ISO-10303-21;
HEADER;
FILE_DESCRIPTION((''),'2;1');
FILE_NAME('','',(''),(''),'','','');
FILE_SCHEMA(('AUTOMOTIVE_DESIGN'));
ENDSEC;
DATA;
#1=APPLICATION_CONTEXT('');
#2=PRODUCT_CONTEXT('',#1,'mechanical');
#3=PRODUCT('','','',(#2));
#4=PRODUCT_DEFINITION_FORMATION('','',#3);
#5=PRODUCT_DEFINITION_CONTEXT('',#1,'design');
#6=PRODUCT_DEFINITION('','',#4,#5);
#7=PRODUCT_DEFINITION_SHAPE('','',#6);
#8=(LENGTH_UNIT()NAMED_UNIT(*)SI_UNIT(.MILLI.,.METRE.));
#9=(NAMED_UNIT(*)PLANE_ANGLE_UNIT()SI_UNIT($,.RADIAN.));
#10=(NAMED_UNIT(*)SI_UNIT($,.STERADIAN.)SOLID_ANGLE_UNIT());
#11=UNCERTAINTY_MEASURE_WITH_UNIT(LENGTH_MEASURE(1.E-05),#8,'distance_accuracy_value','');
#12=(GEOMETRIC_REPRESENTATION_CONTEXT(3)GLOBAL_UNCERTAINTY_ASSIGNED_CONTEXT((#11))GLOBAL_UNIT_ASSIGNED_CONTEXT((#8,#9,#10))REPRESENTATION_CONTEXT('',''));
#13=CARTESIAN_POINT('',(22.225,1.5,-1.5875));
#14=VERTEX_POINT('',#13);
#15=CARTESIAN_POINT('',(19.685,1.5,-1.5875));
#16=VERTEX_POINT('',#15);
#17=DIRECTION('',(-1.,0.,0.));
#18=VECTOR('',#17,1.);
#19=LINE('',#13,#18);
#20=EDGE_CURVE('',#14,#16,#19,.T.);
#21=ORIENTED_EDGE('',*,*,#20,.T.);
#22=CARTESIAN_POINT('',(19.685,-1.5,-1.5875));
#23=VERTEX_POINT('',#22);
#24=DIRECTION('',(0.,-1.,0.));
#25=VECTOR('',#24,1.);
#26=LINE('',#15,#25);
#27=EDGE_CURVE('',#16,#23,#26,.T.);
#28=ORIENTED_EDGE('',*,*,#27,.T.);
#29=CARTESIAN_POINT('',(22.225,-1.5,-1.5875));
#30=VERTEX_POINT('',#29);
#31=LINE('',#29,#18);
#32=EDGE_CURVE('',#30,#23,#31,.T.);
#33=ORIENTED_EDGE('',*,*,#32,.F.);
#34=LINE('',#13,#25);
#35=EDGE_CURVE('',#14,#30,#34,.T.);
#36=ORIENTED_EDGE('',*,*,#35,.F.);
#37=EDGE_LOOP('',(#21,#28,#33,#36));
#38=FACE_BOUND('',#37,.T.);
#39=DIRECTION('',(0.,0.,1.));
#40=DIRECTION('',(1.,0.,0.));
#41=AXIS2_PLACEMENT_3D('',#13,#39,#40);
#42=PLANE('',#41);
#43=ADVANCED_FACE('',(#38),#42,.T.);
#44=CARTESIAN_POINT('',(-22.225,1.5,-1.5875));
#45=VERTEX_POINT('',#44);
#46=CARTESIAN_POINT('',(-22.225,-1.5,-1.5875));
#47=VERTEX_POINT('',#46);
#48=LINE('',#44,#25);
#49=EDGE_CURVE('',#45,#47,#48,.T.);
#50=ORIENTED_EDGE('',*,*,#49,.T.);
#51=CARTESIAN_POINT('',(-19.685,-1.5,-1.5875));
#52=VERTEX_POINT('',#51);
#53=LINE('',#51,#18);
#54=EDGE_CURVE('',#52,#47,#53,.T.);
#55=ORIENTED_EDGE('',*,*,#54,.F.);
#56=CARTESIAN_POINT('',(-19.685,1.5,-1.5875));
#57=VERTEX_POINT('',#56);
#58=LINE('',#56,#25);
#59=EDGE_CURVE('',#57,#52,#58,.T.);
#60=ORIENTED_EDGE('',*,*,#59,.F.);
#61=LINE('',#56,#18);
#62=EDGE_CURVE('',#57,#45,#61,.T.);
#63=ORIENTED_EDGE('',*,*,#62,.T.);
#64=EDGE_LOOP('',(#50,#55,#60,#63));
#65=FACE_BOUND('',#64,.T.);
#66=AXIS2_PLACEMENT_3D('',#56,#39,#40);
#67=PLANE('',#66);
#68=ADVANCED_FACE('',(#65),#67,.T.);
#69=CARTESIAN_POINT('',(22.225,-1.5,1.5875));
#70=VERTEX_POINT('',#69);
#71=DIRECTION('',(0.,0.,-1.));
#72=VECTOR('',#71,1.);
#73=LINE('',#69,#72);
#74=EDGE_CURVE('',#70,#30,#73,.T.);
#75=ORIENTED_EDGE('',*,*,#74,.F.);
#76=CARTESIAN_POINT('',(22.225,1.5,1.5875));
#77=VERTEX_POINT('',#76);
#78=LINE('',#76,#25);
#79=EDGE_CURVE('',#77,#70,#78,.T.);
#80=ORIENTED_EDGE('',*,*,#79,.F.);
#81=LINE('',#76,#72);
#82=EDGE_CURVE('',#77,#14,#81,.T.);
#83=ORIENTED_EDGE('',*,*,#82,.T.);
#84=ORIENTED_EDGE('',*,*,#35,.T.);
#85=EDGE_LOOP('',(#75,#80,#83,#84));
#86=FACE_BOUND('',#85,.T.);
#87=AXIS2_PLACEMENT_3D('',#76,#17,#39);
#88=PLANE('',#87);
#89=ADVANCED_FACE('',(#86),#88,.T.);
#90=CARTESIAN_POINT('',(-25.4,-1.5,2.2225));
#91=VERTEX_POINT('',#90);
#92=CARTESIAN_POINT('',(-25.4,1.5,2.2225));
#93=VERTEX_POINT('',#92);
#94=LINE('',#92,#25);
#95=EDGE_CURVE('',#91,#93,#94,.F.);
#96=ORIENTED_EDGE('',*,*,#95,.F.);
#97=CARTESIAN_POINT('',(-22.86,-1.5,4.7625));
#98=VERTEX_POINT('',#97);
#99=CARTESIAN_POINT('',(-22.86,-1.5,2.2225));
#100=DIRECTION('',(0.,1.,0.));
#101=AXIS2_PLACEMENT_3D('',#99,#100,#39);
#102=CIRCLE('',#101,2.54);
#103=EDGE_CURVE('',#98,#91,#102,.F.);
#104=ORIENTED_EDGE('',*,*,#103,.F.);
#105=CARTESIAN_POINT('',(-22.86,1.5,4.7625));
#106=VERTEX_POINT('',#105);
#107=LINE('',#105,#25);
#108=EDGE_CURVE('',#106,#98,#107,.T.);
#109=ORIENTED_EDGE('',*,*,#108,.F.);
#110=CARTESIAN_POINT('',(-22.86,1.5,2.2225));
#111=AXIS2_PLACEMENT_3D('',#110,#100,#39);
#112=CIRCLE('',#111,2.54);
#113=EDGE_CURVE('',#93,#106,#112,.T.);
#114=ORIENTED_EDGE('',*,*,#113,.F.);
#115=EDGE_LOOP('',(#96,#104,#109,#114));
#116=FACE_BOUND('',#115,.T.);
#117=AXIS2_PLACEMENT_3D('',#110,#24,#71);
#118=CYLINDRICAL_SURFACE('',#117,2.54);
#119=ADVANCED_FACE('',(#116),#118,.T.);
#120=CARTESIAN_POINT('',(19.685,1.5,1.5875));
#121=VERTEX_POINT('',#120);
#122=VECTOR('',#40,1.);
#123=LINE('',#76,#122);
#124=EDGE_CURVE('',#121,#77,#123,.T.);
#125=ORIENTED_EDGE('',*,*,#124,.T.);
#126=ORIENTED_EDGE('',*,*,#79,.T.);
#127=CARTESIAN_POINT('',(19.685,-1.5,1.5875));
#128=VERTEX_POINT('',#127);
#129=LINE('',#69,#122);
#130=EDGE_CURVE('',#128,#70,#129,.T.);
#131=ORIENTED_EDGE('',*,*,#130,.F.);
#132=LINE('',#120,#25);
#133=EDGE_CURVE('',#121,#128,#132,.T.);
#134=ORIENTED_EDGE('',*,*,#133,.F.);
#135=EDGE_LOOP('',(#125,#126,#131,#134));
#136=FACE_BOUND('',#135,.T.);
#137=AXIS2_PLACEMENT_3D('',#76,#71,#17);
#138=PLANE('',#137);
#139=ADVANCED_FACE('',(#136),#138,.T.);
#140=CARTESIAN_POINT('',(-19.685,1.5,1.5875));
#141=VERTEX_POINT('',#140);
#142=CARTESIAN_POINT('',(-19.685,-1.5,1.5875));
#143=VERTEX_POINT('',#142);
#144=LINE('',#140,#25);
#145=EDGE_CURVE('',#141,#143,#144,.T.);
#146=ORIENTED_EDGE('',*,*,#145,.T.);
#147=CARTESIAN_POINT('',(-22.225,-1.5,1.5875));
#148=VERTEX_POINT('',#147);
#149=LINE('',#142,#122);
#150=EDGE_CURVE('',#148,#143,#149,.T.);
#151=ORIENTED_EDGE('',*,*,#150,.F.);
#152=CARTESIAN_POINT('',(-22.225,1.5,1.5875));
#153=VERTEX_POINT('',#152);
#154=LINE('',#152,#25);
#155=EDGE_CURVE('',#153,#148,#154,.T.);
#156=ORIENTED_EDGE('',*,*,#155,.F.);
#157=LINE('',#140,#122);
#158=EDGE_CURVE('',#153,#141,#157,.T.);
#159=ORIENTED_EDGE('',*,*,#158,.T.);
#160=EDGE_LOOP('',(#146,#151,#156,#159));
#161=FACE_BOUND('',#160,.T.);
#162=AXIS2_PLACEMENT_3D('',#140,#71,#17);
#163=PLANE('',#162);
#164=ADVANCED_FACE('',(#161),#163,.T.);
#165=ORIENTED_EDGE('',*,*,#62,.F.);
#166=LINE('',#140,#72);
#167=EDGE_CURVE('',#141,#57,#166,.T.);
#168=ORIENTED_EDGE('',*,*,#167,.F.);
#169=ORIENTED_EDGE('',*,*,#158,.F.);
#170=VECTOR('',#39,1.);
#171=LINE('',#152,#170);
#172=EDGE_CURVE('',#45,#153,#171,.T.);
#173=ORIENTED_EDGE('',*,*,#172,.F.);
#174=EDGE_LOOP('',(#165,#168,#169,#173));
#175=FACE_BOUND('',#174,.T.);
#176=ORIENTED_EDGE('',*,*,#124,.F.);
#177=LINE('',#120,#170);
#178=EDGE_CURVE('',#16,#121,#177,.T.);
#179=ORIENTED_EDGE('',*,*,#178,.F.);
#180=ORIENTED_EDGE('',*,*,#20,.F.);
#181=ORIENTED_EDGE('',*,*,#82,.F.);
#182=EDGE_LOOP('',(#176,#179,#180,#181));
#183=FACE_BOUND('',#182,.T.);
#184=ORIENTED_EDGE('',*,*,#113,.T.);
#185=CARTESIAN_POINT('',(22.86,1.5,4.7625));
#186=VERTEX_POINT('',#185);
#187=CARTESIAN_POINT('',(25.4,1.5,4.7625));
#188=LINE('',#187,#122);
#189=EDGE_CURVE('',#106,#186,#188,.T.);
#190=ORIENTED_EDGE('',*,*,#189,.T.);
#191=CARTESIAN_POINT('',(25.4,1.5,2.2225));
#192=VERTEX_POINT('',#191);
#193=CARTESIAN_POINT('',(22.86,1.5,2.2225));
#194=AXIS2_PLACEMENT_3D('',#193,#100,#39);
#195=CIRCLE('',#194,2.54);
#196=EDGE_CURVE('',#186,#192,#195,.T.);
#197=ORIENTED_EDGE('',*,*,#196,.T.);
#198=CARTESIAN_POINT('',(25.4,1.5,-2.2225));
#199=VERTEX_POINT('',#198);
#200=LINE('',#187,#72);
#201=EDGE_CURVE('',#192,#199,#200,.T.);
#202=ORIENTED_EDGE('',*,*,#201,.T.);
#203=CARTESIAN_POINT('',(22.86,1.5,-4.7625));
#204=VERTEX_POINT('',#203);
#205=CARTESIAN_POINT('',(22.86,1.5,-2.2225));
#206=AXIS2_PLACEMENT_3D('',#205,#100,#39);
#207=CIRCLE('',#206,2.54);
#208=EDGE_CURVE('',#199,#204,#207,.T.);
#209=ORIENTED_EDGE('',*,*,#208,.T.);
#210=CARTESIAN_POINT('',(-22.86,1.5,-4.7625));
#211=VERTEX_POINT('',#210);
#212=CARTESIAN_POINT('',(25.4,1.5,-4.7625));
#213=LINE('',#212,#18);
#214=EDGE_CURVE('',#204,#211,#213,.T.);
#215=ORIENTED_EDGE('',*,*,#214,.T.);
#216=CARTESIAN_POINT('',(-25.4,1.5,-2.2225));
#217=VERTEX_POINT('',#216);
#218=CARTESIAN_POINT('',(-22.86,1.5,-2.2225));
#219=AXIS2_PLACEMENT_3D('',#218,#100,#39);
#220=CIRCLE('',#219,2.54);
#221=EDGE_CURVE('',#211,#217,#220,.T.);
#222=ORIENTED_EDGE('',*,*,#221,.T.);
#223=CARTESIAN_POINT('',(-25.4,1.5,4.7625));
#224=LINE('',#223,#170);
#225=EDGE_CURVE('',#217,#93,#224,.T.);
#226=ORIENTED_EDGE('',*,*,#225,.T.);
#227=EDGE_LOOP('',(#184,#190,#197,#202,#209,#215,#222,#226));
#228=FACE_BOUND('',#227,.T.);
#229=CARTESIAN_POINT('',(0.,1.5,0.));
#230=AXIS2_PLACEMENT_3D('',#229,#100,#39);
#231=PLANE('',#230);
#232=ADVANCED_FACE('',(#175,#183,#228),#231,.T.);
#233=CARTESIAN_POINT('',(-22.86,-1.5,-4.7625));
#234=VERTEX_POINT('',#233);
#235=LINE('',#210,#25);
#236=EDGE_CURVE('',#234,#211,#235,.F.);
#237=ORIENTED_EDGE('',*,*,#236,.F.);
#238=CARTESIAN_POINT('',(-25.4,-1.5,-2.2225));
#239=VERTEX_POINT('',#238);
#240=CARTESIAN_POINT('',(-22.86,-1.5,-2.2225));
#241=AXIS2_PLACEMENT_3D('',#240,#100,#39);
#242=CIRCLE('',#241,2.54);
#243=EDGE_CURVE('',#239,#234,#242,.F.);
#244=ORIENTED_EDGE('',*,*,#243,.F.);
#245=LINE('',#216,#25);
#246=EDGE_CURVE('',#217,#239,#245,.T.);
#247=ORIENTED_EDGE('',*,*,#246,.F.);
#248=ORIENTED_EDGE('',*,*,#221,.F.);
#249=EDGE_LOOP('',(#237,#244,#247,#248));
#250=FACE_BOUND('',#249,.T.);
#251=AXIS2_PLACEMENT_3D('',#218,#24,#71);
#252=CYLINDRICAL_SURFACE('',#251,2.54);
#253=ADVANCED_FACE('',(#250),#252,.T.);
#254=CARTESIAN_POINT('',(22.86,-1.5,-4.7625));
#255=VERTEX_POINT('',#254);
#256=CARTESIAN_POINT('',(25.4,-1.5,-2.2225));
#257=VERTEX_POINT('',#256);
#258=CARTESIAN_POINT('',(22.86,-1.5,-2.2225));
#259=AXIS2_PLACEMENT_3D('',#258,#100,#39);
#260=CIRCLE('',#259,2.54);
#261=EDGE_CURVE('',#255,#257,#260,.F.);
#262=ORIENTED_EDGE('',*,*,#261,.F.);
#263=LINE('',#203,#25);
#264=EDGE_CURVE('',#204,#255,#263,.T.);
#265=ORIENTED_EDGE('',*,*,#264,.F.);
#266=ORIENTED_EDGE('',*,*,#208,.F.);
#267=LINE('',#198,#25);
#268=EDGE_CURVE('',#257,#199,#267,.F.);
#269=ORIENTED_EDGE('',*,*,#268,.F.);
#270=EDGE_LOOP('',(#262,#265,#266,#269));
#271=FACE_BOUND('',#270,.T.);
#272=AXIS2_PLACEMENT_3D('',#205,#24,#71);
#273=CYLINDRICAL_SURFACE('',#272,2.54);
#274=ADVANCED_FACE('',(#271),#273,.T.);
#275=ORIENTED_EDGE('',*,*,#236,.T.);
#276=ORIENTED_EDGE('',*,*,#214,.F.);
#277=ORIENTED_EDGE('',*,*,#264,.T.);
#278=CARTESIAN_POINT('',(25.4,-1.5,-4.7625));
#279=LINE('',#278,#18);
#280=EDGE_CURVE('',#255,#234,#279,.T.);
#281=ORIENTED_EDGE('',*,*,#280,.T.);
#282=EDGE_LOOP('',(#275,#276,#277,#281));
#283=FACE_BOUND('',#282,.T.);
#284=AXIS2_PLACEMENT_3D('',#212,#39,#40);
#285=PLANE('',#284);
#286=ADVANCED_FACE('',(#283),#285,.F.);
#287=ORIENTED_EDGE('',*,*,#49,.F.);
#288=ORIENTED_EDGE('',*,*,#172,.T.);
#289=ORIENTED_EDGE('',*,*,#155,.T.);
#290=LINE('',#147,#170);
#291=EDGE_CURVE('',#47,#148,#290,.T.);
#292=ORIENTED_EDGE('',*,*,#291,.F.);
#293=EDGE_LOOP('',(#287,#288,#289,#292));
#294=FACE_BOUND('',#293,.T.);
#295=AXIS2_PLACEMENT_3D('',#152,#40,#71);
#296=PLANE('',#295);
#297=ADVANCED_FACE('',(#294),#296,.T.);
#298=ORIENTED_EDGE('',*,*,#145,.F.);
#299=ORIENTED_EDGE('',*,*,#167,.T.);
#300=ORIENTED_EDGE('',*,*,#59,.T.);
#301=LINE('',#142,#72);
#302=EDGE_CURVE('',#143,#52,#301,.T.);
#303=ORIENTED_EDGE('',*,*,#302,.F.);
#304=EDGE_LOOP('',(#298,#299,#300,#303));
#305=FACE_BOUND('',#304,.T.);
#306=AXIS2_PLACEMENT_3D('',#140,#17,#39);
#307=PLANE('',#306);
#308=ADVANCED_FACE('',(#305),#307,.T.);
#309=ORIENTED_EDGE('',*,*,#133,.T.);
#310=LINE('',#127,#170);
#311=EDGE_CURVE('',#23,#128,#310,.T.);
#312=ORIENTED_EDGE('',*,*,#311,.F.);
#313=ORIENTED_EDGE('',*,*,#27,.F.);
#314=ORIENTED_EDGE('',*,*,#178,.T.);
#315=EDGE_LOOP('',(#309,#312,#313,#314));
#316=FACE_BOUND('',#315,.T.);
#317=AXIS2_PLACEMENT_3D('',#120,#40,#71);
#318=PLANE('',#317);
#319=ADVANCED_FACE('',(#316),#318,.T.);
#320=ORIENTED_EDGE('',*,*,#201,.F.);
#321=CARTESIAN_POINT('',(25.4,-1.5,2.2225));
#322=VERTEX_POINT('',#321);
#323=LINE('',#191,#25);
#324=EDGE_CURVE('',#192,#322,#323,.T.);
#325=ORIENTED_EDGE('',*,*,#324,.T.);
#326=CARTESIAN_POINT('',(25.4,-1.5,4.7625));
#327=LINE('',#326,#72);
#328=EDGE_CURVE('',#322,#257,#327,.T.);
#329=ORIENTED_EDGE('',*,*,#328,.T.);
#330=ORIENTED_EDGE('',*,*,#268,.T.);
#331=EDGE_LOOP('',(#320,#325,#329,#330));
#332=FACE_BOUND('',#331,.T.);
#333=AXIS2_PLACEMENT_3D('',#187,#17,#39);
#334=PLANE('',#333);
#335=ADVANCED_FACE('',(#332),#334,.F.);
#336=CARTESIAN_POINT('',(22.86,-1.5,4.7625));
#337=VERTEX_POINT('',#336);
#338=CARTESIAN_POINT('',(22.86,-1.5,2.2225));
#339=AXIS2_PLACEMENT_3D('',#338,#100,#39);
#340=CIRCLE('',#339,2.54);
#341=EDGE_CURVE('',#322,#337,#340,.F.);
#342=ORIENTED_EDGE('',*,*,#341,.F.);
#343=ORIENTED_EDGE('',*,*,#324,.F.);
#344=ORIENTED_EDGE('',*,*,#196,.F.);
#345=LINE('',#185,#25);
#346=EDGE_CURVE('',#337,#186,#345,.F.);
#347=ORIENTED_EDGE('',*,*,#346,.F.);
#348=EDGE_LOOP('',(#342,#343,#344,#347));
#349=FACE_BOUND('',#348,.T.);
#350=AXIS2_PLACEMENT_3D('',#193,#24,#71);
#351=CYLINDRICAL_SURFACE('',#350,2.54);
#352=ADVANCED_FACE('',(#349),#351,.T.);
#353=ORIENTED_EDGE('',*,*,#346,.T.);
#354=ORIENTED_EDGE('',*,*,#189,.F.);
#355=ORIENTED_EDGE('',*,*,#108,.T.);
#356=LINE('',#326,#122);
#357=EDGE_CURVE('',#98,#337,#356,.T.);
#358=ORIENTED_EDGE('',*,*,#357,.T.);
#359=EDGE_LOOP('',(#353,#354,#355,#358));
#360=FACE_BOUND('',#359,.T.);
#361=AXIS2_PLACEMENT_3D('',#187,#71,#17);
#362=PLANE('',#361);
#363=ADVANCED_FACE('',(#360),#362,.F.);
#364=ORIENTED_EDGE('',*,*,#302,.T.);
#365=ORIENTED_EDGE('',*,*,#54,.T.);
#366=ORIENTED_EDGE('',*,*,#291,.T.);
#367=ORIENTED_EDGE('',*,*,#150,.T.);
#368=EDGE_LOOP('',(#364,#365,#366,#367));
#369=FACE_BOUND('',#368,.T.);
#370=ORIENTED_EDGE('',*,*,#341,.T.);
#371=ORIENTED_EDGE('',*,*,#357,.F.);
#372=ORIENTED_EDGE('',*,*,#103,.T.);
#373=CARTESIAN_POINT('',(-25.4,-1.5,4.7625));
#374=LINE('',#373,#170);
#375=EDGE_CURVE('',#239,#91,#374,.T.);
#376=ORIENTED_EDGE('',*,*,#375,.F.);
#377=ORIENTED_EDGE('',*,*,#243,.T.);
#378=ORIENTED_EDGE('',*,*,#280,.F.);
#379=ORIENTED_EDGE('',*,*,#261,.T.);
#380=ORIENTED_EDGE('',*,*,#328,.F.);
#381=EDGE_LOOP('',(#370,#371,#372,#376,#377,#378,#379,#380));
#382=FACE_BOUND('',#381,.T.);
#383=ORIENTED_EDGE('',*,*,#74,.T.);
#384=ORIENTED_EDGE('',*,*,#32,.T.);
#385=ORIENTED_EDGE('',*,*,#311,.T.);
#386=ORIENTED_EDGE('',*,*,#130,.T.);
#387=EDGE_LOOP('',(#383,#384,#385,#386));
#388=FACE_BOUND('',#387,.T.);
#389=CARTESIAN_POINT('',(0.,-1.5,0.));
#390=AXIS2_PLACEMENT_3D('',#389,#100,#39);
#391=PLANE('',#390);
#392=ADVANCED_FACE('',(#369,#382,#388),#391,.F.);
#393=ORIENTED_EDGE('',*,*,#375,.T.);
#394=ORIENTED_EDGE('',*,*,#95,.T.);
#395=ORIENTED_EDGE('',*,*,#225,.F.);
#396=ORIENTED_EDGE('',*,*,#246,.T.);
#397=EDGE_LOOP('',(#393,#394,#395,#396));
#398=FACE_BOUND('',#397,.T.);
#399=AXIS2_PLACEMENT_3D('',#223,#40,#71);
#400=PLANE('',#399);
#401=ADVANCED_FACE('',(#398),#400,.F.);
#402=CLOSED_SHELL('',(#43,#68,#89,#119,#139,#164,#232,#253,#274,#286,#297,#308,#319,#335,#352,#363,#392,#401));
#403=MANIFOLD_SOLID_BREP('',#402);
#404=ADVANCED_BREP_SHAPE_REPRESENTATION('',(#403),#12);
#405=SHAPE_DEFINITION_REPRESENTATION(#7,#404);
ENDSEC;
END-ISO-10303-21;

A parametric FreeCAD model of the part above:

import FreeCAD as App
import Part
import Sketcher

V = App.Vector
Q = App.Units.Quantity


def edges_at(feature, points):
    """Names of the edges that pass closest to the given points."""
    edges = feature.Shape.Edges
    near = lambda p: min(range(len(edges)), key=lambda i: edges[i].distToShape(Part.Vertex(*p))[0])
    return sorted({f"Edge{near(p) + 1}" for p in points})

doc = App.newDocument("Part")
body = doc.addObject("PartDesign::Body", "Body")

# Sketch on XZ plane
sketch1 = body.newObject("Sketcher::SketchObject", "Sketch")
sketch1.AttachmentSupport = (doc.getObject("XZ_Plane"), [""])
sketch1.MapMode = "FlatFace"
sketch1.addGeometry([
    Part.LineSegment(V(-25.4, -4.7625, 0), V(-25.4, 4.7625, 0)),  # 0
    Part.LineSegment(V(-25.4, 4.7625, 0), V(25.4, 4.7625, 0)),  # 1
    Part.LineSegment(V(25.4, 4.7625, 0), V(25.4, -4.7625, 0)),  # 2
    Part.LineSegment(V(25.4, -4.7625, 0), V(-25.4, -4.7625, 0)),  # 3
    Part.LineSegment(V(-19.685, 1.5875, 0), V(-22.225, 1.5875, 0)),  # 4
    Part.LineSegment(V(-22.225, 1.5875, 0), V(-22.225, -1.5875, 0)),  # 5
    Part.LineSegment(V(-22.225, -1.5875, 0), V(-19.685, -1.5875, 0)),  # 6
    Part.LineSegment(V(-19.685, -1.5875, 0), V(-19.685, 1.5875, 0)),  # 7
    Part.LineSegment(V(22.225, 1.5875, 0), V(19.685, 1.5875, 0)),  # 8
    Part.LineSegment(V(19.685, 1.5875, 0), V(19.685, -1.5875, 0)),  # 9
    Part.LineSegment(V(19.685, -1.5875, 0), V(22.225, -1.5875, 0)),  # 10
    Part.LineSegment(V(22.225, -1.5875, 0), V(22.225, 1.5875, 0)),  # 11
], False)
sketch1.addConstraint([
    Sketcher.Constraint("Coincident", 0, 2, 1, 1),
    Sketcher.Constraint("Coincident", 1, 2, 2, 1),
    Sketcher.Constraint("Coincident", 2, 2, 3, 1),
    Sketcher.Constraint("Coincident", 3, 2, 0, 1),
    Sketcher.Constraint("Coincident", 4, 2, 5, 1),
    Sketcher.Constraint("Coincident", 5, 2, 6, 1),
    Sketcher.Constraint("Coincident", 6, 2, 7, 1),
    Sketcher.Constraint("Coincident", 7, 2, 4, 1),
    Sketcher.Constraint("Coincident", 8, 2, 9, 1),
    Sketcher.Constraint("Coincident", 9, 2, 10, 1),
    Sketcher.Constraint("Coincident", 10, 2, 11, 1),
    Sketcher.Constraint("Coincident", 11, 2, 8, 1),
    Sketcher.Constraint("Vertical", 0),
    Sketcher.Constraint("Horizontal", 1),
    Sketcher.Constraint("Vertical", 2),
    Sketcher.Constraint("Horizontal", 3),
    Sketcher.Constraint("Horizontal", 4),
    Sketcher.Constraint("Vertical", 5),
    Sketcher.Constraint("Horizontal", 6),
    Sketcher.Constraint("Vertical", 7),
    Sketcher.Constraint("Horizontal", 8),
    Sketcher.Constraint("Vertical", 9),
    Sketcher.Constraint("Horizontal", 10),
    Sketcher.Constraint("Vertical", 11),
    Sketcher.Constraint("Symmetric", 0, 2, 2, 2, -1, 1),
    Sketcher.Constraint("Symmetric", 6, 2, 8, 2, -1, 1),
    Sketcher.Constraint("Symmetric", 4, 2, 10, 2, -1, 1),
    Sketcher.Constraint("Horizontal", 7, 2, 8, 2),
    Sketcher.Constraint("DistanceX", 1, 1, 1, 2, Q("2 in")),
    Sketcher.Constraint("DistanceX", 4, 2, 4, 1, Q("0.1 in")),
    Sketcher.Constraint("DistanceY", 0, 1, 0, 2, Q("0.375 in")),
    Sketcher.Constraint("DistanceY", 5, 2, 5, 1, Q("0.125 in")),
    Sketcher.Constraint("DistanceX", 7, 2, 8, 2, Q("1.55 in")),
])
pad1 = body.newObject("PartDesign::Pad", "Pad")
pad1.Profile = sketch1
pad1.Length = 3
pad1.Midplane = True
doc.recompute()

fillet = body.newObject("PartDesign::Fillet", "Fillet")
fillet.Base = (pad1, edges_at(pad1, [
    (-25.4, 0, -4.763),
    (25.4, 0, -4.763),
    (25.4, 0, 4.763),
    (-25.4, 0, 4.763),
]))
fillet.Radius = Q("0.1 in")

doc.recompute()
